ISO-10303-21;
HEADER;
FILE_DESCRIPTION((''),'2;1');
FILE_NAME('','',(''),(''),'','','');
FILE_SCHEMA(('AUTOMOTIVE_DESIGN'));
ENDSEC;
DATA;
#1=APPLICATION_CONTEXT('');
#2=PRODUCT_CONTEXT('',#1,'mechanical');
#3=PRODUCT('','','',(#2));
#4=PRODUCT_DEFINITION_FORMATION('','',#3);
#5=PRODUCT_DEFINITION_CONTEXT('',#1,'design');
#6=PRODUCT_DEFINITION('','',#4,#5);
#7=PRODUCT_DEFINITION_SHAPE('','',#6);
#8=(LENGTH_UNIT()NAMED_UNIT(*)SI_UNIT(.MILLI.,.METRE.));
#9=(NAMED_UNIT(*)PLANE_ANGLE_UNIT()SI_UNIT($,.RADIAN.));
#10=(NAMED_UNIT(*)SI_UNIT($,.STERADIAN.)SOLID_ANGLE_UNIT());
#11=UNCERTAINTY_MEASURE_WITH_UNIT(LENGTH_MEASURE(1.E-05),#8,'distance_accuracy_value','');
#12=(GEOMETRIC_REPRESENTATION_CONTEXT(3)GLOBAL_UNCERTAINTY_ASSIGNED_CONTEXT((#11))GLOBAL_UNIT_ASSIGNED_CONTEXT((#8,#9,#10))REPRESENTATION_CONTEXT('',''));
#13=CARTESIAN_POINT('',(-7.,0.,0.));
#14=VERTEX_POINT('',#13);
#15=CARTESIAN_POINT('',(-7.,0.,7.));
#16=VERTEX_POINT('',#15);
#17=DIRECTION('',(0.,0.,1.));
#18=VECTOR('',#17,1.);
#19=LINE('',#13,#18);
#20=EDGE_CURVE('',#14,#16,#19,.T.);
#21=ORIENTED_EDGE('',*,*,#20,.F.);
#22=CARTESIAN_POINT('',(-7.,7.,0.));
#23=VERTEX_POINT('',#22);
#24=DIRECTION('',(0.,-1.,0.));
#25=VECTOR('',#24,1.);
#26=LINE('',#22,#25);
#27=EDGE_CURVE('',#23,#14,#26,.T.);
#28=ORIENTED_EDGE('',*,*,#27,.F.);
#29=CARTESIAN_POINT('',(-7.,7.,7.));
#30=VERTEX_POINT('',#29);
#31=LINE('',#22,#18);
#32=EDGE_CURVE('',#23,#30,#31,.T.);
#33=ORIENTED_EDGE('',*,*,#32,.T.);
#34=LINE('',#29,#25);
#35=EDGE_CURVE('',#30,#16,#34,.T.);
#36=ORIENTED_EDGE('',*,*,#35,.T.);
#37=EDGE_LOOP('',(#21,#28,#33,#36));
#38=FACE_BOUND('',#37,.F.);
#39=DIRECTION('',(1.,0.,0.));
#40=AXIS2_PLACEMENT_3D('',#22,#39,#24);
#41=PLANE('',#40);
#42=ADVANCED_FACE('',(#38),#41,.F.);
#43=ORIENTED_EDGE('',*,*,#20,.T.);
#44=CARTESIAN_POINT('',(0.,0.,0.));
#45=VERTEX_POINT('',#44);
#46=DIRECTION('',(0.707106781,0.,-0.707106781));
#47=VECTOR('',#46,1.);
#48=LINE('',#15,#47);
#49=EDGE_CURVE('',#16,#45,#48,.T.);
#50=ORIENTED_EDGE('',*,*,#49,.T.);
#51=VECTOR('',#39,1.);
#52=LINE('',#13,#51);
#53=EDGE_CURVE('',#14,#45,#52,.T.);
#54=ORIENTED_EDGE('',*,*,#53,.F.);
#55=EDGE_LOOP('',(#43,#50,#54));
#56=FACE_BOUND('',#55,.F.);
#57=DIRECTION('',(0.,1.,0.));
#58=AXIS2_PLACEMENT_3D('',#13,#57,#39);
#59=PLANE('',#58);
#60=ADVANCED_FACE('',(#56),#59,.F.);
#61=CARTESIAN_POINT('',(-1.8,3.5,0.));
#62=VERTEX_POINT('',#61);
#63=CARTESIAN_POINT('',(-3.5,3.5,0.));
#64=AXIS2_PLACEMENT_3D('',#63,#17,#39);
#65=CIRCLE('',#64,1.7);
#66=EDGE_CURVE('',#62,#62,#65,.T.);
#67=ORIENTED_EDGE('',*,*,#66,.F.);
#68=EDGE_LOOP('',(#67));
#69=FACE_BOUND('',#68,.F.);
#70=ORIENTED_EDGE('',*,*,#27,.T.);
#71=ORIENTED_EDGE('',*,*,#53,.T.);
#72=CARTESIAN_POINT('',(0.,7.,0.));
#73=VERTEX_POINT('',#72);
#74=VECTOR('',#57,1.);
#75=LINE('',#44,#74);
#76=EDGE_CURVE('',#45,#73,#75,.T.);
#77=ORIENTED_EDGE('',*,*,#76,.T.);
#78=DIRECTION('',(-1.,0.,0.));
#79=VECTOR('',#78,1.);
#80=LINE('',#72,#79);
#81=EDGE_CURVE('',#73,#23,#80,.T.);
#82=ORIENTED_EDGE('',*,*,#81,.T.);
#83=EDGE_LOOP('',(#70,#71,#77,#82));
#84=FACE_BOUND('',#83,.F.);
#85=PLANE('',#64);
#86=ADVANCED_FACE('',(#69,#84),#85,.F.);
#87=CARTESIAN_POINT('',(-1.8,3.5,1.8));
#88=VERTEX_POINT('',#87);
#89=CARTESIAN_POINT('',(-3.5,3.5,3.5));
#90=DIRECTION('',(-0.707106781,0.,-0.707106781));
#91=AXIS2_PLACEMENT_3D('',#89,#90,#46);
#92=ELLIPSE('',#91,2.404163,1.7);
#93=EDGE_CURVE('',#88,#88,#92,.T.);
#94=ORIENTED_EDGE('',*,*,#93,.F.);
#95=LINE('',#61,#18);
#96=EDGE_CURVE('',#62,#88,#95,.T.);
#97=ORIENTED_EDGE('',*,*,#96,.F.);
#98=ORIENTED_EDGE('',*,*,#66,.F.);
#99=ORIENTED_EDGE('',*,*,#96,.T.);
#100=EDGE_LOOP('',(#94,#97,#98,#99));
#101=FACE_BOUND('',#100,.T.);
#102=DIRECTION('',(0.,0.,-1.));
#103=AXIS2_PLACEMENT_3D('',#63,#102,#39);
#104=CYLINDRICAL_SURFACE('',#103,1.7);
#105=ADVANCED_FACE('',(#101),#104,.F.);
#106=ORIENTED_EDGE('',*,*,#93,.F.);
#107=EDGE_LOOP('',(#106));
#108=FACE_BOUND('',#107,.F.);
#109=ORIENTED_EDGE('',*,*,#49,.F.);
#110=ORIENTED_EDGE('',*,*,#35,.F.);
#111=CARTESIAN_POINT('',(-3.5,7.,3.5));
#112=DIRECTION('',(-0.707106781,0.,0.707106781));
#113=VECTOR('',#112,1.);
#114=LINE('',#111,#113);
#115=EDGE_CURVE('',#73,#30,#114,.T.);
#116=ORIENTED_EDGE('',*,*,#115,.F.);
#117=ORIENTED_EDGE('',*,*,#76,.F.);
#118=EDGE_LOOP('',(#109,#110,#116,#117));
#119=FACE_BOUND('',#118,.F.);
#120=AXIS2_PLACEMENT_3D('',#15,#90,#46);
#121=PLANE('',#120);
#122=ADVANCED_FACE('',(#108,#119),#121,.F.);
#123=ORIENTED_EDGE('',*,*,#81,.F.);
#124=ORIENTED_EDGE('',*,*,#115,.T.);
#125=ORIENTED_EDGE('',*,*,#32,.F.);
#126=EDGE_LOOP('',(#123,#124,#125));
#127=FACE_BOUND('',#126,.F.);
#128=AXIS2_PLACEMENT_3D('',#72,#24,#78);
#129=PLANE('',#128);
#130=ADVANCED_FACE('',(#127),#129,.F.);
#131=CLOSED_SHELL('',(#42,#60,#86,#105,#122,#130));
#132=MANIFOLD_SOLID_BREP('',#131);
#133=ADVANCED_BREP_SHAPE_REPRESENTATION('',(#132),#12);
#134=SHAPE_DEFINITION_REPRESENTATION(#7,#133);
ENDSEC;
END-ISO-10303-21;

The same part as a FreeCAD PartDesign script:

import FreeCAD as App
import Part
import Sketcher

V = App.Vector

doc = App.newDocument("Part")
params = doc.addObject("Spreadsheet::Sheet", "Params")
for row, (alias, value) in enumerate([
    ("sketch1_width", "7 mm"),
    ("sketch1_diameter", "3.4 mm"),
    ("pad1_length", "7 mm"),
    ("sketch2_width", "7 mm"),
    ("pocket1_length", "7 mm"),
], start=1):
    params.set(f"A{row}", alias)
    params.set(f"B{row}", "=" + value)
    params.setAlias(f"B{row}", alias)

body = doc.addObject("PartDesign::Body", "Body")

# Sketch on XY plane
sketch1 = doc.addObject("Sketcher::SketchObject", "Sketch")
body.addObject(sketch1)
sketch1.AttachmentSupport = (doc.XY_Plane, [""])
sketch1.MapMode = "FlatFace"
sketch1.addGeometry(Part.LineSegment(V(-7, 7, 0), V(-7, 0, 0)), False)
sketch1.addGeometry(Part.LineSegment(V(-7, 0, 0), V(0, 0, 0)), False)
sketch1.addGeometry(Part.LineSegment(V(0, 0, 0), V(0, 7, 0)), False)
sketch1.addGeometry(Part.LineSegment(V(0, 7, 0), V(-7, 7, 0)), False)
sketch1.addGeometry(Part.Circle(V(-3.5, 3.5, 0), V(0, 0, 1), 1.7), False)
sketch1.addConstraint(Sketcher.Constraint("Coincident", 0, 2, 1, 1))
sketch1.addConstraint(Sketcher.Constraint("Coincident", 1, 2, 2, 1))
sketch1.addConstraint(Sketcher.Constraint("Coincident", 2, 2, 3, 1))
sketch1.addConstraint(Sketcher.Constraint("Coincident", 3, 2, 0, 1))
sketch1.addConstraint(Sketcher.Constraint("Vertical", 0))
sketch1.addConstraint(Sketcher.Constraint("Horizontal", 1))
sketch1.addConstraint(Sketcher.Constraint("Vertical", 2))
sketch1.addConstraint(Sketcher.Constraint("Horizontal", 3))
sketch1.addConstraint(Sketcher.Constraint("Coincident", 1, 2, -1, 1))
sketch1.addConstraint(Sketcher.Constraint("Equal", 3, 0))
sketch1.addConstraint(Sketcher.Constraint("DistanceX", 1, 1, 1, 2, 7.0))
sketch1.addConstraint(Sketcher.Constraint("Diameter", 4, 3.4))
sketch1.addConstraint(Sketcher.Constraint("DistanceX", 4, 3, -1, 1, 3.5))
sketch1.addConstraint(Sketcher.Constraint("DistanceY", -1, 1, 4, 3, 3.5))
sketch1.setExpression("Constraints[10]", "Params.sketch1_width")
sketch1.setExpression("Constraints[11]", "Params.sketch1_diameter")
pad1 = doc.addObject("PartDesign::Pad", "Pad")
body.addObject(pad1)
pad1.Profile = sketch1
pad1.setExpression("Length", "Params.pad1_length")

# Sketch on XZ plane
sketch2 = doc.addObject("Sketcher::SketchObject", "Sketch001")
body.addObject(sketch2)
sketch2.AttachmentSupport = (doc.XZ_Plane, [""])
sketch2.MapMode = "FlatFace"
sketch2.addGeometry(Part.LineSegment(V(0, 7, 0), V(-7, 7, 0)), False)
sketch2.addGeometry(Part.LineSegment(V(-7, 7, 0), V(0, 0, 0)), False)
sketch2.addGeometry(Part.LineSegment(V(0, 0, 0), V(0, 7, 0)), False)
sketch2.addConstraint(Sketcher.Constraint("Coincident", 0, 2, 1, 1))
sketch2.addConstraint(Sketcher.Constraint("Coincident", 1, 2, 2, 1))
sketch2.addConstraint(Sketcher.Constraint("Coincident", 2, 2, 0, 1))
sketch2.addConstraint(Sketcher.Constraint("Horizontal", 0))
sketch2.addConstraint(Sketcher.Constraint("Vertical", 2))
sketch2.addConstraint(Sketcher.Constraint("Coincident", 1, 2, -1, 1))
sketch2.addConstraint(Sketcher.Constraint("Equal", 0, 2))
sketch2.addConstraint(Sketcher.Constraint("DistanceX", 0, 2, 0, 1, 7.0))
sketch2.setExpression("Constraints[7]", "Params.sketch2_width")
pocket1 = doc.addObject("PartDesign::Pocket", "Pocket")
body.addObject(pocket1)
pocket1.Profile = sketch2
pocket1.setExpression("Length", "Params.pocket1_length")

doc.recompute()
